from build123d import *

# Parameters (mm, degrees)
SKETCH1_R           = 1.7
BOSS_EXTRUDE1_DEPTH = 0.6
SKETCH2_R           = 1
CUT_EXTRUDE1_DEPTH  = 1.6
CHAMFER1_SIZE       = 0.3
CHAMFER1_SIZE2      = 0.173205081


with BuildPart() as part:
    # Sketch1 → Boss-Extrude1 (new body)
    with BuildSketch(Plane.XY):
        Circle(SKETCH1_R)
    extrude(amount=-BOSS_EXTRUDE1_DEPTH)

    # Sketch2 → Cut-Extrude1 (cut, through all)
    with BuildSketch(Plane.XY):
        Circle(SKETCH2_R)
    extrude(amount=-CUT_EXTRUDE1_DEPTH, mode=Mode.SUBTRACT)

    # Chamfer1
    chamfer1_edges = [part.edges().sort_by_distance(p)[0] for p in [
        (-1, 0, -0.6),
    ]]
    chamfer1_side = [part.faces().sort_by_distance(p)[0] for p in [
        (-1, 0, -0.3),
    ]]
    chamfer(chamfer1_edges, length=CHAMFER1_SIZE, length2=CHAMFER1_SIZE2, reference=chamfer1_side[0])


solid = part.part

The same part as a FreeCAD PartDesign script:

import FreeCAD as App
import Part
import Sketcher
Q = App.Units.Quantity


def edges_at(feature, points):
    """Names of the edges that pass closest to the given points."""
    edges = feature.Shape.Edges
    near = lambda p: min(range(len(edges)), key=lambda i: edges[i].distToShape(Part.Vertex(*p))[0])
    return sorted({f"Edge{near(p) + 1}" for p in points})

doc = App.newDocument("Part")
params = doc.addObject("Spreadsheet::Sheet", "Params")
for row, (alias, value) in enumerate([
    ("sketch1_diameter", "3.4 mm"),
    ("pad1_length", "0.6 mm"),
    ("sketch2_diameter", "2 mm"),
    ("chamfer_size", "0.3 mm"),
    ("chamfer_size2", "0.173205 mm"),
], start=1):
    params.set(f"A{row}", alias)
    params.set(f"B{row}", "=" + value)
    params.setAlias(f"B{row}", alias)

body = doc.addObject("PartDesign::Body", "Body")

sketch1 = doc.addObject("Sketcher::SketchObject", "Sketch")
body.addObject(sketch1)
sketch1.AttachmentSupport = (doc.XY_Plane, [""])
sketch1.MapMode = "FlatFace"
sketch1.addGeometry(Part.Circle(App.Vector(0, 0, 0), App.Vector(0, 0, 1), 1.7), False)
sketch1.addConstraint(Sketcher.Constraint("Coincident", 0, 3, -1, 1))
sketch1.addConstraint(Sketcher.Constraint("Diameter", 0, Q("3.4 mm")))
sketch1.setExpression("Constraints[1]", "Params.sketch1_diameter")
pad1 = doc.addObject("PartDesign::Pad", "Pad")
body.addObject(pad1)
pad1.Profile = sketch1
pad1.setExpression("Length", "Params.pad1_length")
pad1.Reversed = True

sketch2 = doc.addObject("Sketcher::SketchObject", "Sketch001")
body.addObject(sketch2)
sketch2.AttachmentSupport = (doc.XY_Plane, [""])
sketch2.MapMode = "FlatFace"
sketch2.addGeometry(Part.Circle(App.Vector(0, 0, 0), App.Vector(0, 0, 1), 1), False)
sketch2.addConstraint(Sketcher.Constraint("Coincident", 0, 3, -1, 1))
sketch2.addConstraint(Sketcher.Constraint("Diameter", 0, Q("2 mm")))
sketch2.setExpression("Constraints[1]", "Params.sketch2_diameter")
pocket1 = doc.addObject("PartDesign::Pocket", "Pocket")
body.addObject(pocket1)
pocket1.Profile = sketch2
pocket1.Type = "ThroughAll"
doc.recompute()

chamfer = doc.addObject("PartDesign::Chamfer", "Chamfer")
body.addObject(chamfer)
chamfer.Base = (pocket1, edges_at(pocket1, [(-1, 0, -0.6)]))
chamfer.ChamferType = "Two distances"
chamfer.setExpression("Size", "Params.chamfer_size")
chamfer.setExpression("Size2", "Params.chamfer_size2")
chamfer.FlipDirection = True

doc.recompute()
